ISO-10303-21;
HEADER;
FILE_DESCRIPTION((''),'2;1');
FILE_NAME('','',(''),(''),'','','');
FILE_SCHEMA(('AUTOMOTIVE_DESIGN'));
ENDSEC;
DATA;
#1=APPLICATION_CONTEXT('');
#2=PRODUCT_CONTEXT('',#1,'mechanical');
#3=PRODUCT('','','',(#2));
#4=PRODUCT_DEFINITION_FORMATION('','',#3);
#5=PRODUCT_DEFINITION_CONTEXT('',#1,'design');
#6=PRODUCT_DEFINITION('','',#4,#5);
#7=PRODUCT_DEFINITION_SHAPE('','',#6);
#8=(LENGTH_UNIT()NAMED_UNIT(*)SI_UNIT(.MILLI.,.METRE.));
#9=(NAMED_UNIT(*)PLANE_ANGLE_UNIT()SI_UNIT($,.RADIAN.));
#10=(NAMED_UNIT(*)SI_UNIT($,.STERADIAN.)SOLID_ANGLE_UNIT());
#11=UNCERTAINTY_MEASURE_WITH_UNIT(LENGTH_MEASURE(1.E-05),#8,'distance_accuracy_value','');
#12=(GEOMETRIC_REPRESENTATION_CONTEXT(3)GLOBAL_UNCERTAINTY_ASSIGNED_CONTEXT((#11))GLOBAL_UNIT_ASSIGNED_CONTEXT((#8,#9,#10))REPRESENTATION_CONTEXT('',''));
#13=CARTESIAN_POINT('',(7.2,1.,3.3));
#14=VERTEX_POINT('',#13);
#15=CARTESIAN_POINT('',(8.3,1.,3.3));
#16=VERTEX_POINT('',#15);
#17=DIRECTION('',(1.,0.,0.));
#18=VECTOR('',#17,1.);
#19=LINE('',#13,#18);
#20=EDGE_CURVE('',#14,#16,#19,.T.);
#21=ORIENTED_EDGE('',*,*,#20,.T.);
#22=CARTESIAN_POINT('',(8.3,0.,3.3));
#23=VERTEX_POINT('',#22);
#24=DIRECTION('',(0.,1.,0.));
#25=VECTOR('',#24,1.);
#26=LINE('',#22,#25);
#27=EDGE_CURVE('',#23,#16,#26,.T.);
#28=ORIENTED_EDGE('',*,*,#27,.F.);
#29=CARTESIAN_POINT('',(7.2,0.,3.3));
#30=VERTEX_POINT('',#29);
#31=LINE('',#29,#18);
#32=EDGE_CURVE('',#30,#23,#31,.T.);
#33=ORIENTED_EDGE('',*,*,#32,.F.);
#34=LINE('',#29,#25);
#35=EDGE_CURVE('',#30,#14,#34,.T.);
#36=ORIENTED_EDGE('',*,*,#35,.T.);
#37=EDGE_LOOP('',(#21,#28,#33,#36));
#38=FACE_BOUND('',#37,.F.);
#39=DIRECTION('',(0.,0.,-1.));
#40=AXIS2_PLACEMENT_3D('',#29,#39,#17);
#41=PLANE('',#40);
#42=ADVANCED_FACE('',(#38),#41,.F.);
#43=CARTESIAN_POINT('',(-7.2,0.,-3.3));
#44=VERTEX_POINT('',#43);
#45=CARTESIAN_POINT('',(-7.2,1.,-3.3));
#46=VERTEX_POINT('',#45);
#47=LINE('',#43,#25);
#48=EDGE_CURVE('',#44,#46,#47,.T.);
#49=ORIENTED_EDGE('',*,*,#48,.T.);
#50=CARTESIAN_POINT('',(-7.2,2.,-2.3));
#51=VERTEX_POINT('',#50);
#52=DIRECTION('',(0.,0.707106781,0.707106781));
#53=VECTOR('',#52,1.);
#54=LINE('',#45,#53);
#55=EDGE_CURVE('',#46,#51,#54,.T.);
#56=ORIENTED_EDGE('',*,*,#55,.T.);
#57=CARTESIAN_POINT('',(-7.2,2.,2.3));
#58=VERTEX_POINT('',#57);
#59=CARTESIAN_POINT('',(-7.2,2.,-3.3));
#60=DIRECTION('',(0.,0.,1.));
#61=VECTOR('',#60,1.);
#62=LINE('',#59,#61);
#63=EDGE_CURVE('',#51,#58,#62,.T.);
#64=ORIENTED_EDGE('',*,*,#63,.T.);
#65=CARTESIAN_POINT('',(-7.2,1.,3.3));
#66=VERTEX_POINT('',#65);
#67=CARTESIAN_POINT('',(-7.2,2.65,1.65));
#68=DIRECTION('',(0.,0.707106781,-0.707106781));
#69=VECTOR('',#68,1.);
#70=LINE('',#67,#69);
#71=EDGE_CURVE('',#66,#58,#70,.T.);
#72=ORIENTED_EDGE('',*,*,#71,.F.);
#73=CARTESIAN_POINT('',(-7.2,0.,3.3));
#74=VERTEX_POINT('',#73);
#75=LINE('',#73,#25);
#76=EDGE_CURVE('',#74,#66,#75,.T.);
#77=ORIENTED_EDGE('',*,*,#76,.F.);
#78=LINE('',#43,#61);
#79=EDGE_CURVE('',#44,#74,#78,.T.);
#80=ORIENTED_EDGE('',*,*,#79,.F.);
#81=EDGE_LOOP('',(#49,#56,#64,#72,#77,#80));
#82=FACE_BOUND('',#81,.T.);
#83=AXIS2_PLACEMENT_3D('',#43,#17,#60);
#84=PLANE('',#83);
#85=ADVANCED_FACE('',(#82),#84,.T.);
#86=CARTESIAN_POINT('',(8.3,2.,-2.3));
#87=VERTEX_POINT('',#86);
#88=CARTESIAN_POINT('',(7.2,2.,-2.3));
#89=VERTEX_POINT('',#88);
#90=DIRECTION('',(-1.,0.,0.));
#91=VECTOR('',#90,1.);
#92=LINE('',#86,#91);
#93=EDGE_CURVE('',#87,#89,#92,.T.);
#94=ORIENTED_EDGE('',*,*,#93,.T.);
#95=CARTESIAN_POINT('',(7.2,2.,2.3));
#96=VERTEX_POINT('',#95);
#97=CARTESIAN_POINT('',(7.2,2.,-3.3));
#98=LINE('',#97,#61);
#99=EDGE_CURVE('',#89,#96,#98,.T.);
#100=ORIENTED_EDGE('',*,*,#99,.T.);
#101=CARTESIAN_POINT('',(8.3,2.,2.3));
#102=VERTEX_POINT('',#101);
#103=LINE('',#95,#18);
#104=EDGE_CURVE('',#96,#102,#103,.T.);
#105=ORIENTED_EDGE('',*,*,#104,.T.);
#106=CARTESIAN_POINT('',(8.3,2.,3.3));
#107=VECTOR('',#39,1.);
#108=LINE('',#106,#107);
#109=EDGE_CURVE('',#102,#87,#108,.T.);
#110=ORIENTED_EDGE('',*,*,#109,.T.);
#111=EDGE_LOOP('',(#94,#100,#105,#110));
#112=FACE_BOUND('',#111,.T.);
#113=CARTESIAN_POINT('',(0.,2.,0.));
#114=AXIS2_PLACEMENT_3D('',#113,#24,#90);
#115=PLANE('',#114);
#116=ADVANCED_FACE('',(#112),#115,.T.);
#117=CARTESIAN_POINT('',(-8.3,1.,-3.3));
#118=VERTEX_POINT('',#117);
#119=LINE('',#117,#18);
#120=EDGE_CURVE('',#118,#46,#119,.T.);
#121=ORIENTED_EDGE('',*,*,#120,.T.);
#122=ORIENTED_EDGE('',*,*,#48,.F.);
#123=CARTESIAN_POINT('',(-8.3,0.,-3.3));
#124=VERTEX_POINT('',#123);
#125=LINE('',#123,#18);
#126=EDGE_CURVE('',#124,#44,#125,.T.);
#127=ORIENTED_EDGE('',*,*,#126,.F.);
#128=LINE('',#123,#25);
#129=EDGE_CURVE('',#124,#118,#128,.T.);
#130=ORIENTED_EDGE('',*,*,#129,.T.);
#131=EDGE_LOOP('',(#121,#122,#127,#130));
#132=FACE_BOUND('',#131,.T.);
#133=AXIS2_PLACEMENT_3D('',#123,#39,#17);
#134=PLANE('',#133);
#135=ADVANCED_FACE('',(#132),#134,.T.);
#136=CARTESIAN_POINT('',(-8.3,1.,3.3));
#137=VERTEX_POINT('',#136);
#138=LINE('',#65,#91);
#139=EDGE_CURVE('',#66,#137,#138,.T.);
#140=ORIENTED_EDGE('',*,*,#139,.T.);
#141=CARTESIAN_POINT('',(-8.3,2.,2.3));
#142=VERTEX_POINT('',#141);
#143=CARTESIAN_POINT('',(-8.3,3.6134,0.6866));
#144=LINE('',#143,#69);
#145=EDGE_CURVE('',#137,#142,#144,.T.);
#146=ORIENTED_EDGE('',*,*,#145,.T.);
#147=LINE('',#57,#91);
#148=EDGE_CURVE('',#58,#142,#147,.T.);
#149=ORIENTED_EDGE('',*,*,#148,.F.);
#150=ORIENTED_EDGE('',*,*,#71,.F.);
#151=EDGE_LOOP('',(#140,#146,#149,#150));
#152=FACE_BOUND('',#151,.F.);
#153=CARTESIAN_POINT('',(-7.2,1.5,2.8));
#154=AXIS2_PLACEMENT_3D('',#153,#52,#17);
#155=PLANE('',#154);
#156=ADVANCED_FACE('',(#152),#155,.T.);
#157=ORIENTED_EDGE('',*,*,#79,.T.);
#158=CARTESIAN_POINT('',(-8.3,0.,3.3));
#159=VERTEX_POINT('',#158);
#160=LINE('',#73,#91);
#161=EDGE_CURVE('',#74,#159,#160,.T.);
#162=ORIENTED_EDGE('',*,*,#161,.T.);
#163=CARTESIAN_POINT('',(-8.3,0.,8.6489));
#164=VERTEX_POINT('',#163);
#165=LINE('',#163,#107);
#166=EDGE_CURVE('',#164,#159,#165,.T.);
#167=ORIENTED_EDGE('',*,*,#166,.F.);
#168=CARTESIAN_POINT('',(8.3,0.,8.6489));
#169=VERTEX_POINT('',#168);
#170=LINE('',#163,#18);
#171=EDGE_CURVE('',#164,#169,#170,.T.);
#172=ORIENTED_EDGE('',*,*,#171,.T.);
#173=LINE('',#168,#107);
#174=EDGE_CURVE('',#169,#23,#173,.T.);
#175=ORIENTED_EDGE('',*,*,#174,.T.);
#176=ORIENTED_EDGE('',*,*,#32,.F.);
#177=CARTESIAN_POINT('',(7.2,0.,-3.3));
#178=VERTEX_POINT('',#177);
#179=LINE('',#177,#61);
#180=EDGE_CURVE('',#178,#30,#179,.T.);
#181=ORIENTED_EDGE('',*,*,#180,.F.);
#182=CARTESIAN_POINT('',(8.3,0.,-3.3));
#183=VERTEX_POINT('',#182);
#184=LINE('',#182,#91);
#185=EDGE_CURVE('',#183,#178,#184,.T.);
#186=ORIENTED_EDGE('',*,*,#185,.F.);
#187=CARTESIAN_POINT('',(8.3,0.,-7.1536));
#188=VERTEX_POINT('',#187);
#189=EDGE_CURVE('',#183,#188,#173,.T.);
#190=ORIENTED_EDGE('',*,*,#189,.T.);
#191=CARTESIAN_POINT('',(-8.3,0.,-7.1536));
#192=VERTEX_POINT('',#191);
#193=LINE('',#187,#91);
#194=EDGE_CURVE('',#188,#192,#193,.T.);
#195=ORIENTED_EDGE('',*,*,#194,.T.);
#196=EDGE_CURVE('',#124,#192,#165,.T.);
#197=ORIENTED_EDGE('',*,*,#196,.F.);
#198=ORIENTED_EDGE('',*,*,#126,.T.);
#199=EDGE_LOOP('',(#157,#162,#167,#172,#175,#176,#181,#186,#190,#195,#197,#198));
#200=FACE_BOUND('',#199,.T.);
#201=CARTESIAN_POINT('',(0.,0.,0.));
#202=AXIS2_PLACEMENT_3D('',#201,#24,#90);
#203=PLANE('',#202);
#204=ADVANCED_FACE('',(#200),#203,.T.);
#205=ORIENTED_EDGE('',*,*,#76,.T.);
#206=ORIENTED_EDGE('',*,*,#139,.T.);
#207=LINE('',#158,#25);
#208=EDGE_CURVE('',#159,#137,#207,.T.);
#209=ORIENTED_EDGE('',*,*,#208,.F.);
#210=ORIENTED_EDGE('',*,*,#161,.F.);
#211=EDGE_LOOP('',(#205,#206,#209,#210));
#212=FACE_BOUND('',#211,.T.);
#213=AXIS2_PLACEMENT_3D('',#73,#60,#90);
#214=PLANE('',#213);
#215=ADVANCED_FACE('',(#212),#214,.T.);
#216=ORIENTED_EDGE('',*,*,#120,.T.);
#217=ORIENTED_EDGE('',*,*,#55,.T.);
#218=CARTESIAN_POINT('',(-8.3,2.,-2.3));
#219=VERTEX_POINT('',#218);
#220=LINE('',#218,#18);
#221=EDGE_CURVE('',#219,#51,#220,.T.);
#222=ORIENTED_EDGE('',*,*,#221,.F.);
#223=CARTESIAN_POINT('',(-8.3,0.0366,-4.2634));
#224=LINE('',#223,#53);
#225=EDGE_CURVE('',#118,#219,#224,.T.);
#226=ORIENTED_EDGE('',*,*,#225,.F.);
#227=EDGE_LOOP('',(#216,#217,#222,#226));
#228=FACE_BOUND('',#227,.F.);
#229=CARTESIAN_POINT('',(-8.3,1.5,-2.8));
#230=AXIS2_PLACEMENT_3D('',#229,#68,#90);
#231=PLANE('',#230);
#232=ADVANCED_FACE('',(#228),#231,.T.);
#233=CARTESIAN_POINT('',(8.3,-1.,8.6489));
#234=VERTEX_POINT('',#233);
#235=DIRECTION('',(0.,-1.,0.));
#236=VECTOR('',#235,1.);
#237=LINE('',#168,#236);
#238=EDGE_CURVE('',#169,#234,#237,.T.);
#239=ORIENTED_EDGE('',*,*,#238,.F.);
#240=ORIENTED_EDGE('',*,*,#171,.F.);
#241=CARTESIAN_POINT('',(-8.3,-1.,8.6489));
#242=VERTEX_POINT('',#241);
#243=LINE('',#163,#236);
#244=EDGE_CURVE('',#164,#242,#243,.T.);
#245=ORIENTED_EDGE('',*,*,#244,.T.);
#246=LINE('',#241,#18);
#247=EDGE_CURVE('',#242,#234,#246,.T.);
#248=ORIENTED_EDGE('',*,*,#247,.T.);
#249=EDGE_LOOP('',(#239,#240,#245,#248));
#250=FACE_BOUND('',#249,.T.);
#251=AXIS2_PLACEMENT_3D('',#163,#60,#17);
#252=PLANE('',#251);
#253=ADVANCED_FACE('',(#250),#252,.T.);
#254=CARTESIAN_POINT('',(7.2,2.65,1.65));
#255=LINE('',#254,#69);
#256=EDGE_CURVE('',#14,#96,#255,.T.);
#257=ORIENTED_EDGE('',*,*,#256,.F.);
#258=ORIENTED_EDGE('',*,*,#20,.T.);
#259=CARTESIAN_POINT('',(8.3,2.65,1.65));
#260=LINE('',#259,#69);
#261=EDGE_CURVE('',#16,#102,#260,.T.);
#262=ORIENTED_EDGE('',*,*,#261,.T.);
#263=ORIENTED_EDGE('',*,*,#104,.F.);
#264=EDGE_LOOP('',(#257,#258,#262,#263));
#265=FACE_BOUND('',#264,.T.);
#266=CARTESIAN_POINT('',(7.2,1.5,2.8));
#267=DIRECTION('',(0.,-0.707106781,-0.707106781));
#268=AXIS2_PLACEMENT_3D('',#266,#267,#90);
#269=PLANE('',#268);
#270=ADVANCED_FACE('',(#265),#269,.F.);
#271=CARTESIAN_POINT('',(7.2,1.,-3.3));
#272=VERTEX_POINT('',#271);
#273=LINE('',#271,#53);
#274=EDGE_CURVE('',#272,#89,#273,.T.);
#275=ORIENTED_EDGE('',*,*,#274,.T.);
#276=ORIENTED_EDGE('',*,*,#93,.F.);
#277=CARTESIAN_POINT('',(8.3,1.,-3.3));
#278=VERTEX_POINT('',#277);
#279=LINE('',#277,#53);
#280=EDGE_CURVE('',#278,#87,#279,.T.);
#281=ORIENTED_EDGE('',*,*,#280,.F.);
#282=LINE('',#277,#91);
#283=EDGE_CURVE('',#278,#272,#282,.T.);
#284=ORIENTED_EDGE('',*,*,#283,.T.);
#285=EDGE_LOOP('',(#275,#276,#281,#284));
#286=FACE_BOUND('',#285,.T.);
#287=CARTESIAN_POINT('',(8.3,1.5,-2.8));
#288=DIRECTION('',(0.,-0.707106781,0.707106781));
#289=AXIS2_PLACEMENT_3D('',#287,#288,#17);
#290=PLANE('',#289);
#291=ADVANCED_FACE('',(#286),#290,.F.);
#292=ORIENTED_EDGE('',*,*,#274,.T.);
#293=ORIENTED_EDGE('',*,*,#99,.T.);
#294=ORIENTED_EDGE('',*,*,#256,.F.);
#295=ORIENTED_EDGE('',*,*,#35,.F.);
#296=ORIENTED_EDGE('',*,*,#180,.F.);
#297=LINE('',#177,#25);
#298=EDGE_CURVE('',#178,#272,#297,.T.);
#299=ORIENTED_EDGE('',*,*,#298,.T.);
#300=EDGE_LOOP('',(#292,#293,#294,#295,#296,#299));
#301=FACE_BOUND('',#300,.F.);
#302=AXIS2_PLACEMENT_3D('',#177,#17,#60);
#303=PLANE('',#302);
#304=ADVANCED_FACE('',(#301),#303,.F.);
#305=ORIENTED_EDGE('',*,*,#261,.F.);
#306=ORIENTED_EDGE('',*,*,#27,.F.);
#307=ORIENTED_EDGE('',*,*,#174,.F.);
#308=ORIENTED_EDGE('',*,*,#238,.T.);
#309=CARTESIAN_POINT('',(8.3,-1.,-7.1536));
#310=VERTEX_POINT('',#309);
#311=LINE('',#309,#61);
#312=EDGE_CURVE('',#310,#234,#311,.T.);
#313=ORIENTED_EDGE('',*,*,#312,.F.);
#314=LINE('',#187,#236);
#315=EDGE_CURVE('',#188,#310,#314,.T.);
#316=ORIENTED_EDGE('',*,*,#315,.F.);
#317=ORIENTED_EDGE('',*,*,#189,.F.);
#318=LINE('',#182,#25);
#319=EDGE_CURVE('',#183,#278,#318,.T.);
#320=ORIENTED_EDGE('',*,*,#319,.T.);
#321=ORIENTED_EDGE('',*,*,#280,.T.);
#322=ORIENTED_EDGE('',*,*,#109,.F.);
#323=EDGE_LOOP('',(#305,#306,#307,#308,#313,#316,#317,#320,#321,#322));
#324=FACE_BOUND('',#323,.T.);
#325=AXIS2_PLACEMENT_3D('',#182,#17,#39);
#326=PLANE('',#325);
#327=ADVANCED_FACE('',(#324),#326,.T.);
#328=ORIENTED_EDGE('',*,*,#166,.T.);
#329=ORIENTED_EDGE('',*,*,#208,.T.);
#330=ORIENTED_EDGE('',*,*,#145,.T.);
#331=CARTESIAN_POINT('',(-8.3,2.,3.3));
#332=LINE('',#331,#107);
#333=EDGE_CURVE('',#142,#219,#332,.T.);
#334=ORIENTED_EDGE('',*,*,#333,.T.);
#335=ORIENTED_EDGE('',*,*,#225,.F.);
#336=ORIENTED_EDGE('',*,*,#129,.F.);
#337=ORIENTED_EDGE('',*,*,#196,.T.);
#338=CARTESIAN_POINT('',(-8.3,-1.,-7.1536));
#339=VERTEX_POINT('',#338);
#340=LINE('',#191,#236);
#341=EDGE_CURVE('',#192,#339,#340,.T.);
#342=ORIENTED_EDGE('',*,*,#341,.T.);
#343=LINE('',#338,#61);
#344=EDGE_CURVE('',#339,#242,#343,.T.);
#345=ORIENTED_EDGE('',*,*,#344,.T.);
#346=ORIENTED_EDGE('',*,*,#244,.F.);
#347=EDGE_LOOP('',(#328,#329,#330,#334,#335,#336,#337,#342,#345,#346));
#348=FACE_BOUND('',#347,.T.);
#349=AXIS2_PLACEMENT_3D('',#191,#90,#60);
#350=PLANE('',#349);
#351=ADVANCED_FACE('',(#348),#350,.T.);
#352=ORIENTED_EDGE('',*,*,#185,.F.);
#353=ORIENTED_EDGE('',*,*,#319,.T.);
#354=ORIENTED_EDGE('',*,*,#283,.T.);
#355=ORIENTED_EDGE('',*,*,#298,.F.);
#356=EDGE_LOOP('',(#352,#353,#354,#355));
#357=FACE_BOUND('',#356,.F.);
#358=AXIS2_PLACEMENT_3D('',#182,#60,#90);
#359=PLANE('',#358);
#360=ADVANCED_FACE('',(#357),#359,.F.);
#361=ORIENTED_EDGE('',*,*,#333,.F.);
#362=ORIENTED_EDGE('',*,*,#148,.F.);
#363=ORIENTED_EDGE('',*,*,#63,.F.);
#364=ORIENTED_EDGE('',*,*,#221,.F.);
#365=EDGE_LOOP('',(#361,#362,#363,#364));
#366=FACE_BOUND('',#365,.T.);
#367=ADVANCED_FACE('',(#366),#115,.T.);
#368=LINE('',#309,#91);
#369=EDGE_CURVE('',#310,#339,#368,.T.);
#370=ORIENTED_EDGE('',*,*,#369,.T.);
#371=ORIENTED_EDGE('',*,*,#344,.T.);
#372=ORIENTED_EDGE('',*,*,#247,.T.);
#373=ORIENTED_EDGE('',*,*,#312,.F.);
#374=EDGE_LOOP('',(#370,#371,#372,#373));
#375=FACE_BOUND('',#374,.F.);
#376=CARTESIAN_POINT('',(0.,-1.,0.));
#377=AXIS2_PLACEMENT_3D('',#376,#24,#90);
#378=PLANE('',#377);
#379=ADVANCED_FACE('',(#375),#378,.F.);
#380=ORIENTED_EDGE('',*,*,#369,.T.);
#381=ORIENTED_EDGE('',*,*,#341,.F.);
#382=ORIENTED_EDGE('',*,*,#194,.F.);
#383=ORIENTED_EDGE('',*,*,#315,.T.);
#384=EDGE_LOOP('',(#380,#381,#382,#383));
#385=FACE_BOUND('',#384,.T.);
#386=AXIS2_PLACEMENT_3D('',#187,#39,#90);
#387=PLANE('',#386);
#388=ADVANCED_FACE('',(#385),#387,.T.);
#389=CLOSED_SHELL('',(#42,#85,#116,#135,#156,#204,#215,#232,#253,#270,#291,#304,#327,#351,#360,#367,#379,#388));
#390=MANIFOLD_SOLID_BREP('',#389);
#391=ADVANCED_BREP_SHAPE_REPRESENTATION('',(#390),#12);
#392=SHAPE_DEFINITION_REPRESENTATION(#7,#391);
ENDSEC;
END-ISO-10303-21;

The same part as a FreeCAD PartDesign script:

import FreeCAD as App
import Part
import Sketcher
from FreeCAD import Vector
Q = App.Units.Quantity


def edges_at(feature, points):
    """Names of the edges that pass closest to the given points."""
    edges = feature.Shape.Edges
    near = lambda p: min(range(len(edges)), key=lambda i: edges[i].distToShape(Part.Vertex(*p))[0])
    return sorted({f"Edge{near(p) + 1}" for p in points})


def add_polygon(sketch, points):
    """Adds a closed chain of lines whose ends are joined by coincident constraints."""
    first, n = sketch.GeometryCount, len(points)
    for a, b in zip(points, points[1:] + points[:1]):
        sketch.addGeometry(Part.LineSegment(App.Vector(*a, 0), App.Vector(*b, 0)), False)
    for i in range(n):
        sketch.addConstraint(Sketcher.Constraint("Coincident", first + i, 2, first + (i + 1) % n, 1))

doc = App.newDocument("Part")
body = doc.addObject("PartDesign::Body", "Body")

sketch1 = body.newObject("Sketcher::SketchObject", "Sketch")
sketch1.AttachmentSupport = (doc.getObject("XZ_Plane"), [""])
sketch1.MapMode = "FlatFace"
add_polygon(sketch1, [(-8, -7), (-8, 9), (8, 9), (8, -7)])
sketch1.addConstraint(Sketcher.Constraint("Vertical", 0))
sketch1.addConstraint(Sketcher.Constraint("Horizontal", 1))
sketch1.addConstraint(Sketcher.Constraint("Vertical", 2))
sketch1.addConstraint(Sketcher.Constraint("Horizontal", 3))
sketch1.addConstraint(Sketcher.Constraint("DistanceX", 1, 1, 1, 2, Q("16.6 mm")))
sketch1.addConstraint(Sketcher.Constraint("DistanceX", 0, 2, -1, 1, Q("8.3 mm")))
sketch1.addConstraint(Sketcher.Constraint("DistanceY", 0, 1, 0, 2, Q("15.8025 mm")))
sketch1.addConstraint(Sketcher.Constraint("DistanceY", -1, 1, 0, 2, Q("8.649 mm")))
pad1 = body.newObject("PartDesign::Pad", "Pad")
pad1.Profile = sketch1
pad1.Length = 1

sketch2 = body.newObject("Sketcher::SketchObject", "Sketch001")
sketch2.AttachmentSupport = (doc.getObject("XZ_Plane"), [""])
sketch2.MapMode = "FlatFace"
add_polygon(sketch2, [(-8.3, 3.3), (-7.2, 3.3), (-7.2, -3.3), (-8.3, -3.3)])
add_polygon(sketch2, [(7.2, 3.3), (8.3, 3.3), (8.3, -3.3), (7.2, -3.3)])
sketch2.addConstraint(Sketcher.Constraint("Horizontal", 0))
sketch2.addConstraint(Sketcher.Constraint("Vertical", 1))
sketch2.addConstraint(Sketcher.Constraint("Horizontal", 2))
sketch2.addConstraint(Sketcher.Constraint("Vertical", 3))
sketch2.addConstraint(Sketcher.Constraint("Horizontal", 4))
sketch2.addConstraint(Sketcher.Constraint("Vertical", 5))
sketch2.addConstraint(Sketcher.Constraint("Horizontal", 6))
sketch2.addConstraint(Sketcher.Constraint("Vertical", 7))
sketch2.addConstraint(Sketcher.Constraint("Symmetric", 2, 2, 4, 2, -1, 1))
sketch2.addConstraint(Sketcher.Constraint("Symmetric", 0, 2, 6, 2, -1, 1))
sketch2.addConstraint(Sketcher.Constraint("Horizontal", 3, 2, 4, 2))
sketch2.addConstraint(Sketcher.Constraint("DistanceX", 0, 1, 0, 2, Q("1.1 mm")))
sketch2.addConstraint(Sketcher.Constraint("DistanceY", 1, 2, 1, 1, Q("6.6 mm")))
sketch2.addConstraint(Sketcher.Constraint("DistanceX", 0, 2, -1, 1, Q("7.2 mm")))
pad2 = body.newObject("PartDesign::Pad", "Pad001")
pad2.Profile = sketch2
pad2.Length = 2
pad2.Reversed = True
doc.recompute()

chamfer = body.newObject("PartDesign::Chamfer", "Chamfer")
chamfer.Base = (pad2, edges_at(pad2, [
    (-7.75, 2, 3.3),
    (-7.75, 2, -3.3),
    (7.75, 2, 3.3),
    (7.75, 2, -3.3),
]))
chamfer.Size = 1

doc.recompute()
